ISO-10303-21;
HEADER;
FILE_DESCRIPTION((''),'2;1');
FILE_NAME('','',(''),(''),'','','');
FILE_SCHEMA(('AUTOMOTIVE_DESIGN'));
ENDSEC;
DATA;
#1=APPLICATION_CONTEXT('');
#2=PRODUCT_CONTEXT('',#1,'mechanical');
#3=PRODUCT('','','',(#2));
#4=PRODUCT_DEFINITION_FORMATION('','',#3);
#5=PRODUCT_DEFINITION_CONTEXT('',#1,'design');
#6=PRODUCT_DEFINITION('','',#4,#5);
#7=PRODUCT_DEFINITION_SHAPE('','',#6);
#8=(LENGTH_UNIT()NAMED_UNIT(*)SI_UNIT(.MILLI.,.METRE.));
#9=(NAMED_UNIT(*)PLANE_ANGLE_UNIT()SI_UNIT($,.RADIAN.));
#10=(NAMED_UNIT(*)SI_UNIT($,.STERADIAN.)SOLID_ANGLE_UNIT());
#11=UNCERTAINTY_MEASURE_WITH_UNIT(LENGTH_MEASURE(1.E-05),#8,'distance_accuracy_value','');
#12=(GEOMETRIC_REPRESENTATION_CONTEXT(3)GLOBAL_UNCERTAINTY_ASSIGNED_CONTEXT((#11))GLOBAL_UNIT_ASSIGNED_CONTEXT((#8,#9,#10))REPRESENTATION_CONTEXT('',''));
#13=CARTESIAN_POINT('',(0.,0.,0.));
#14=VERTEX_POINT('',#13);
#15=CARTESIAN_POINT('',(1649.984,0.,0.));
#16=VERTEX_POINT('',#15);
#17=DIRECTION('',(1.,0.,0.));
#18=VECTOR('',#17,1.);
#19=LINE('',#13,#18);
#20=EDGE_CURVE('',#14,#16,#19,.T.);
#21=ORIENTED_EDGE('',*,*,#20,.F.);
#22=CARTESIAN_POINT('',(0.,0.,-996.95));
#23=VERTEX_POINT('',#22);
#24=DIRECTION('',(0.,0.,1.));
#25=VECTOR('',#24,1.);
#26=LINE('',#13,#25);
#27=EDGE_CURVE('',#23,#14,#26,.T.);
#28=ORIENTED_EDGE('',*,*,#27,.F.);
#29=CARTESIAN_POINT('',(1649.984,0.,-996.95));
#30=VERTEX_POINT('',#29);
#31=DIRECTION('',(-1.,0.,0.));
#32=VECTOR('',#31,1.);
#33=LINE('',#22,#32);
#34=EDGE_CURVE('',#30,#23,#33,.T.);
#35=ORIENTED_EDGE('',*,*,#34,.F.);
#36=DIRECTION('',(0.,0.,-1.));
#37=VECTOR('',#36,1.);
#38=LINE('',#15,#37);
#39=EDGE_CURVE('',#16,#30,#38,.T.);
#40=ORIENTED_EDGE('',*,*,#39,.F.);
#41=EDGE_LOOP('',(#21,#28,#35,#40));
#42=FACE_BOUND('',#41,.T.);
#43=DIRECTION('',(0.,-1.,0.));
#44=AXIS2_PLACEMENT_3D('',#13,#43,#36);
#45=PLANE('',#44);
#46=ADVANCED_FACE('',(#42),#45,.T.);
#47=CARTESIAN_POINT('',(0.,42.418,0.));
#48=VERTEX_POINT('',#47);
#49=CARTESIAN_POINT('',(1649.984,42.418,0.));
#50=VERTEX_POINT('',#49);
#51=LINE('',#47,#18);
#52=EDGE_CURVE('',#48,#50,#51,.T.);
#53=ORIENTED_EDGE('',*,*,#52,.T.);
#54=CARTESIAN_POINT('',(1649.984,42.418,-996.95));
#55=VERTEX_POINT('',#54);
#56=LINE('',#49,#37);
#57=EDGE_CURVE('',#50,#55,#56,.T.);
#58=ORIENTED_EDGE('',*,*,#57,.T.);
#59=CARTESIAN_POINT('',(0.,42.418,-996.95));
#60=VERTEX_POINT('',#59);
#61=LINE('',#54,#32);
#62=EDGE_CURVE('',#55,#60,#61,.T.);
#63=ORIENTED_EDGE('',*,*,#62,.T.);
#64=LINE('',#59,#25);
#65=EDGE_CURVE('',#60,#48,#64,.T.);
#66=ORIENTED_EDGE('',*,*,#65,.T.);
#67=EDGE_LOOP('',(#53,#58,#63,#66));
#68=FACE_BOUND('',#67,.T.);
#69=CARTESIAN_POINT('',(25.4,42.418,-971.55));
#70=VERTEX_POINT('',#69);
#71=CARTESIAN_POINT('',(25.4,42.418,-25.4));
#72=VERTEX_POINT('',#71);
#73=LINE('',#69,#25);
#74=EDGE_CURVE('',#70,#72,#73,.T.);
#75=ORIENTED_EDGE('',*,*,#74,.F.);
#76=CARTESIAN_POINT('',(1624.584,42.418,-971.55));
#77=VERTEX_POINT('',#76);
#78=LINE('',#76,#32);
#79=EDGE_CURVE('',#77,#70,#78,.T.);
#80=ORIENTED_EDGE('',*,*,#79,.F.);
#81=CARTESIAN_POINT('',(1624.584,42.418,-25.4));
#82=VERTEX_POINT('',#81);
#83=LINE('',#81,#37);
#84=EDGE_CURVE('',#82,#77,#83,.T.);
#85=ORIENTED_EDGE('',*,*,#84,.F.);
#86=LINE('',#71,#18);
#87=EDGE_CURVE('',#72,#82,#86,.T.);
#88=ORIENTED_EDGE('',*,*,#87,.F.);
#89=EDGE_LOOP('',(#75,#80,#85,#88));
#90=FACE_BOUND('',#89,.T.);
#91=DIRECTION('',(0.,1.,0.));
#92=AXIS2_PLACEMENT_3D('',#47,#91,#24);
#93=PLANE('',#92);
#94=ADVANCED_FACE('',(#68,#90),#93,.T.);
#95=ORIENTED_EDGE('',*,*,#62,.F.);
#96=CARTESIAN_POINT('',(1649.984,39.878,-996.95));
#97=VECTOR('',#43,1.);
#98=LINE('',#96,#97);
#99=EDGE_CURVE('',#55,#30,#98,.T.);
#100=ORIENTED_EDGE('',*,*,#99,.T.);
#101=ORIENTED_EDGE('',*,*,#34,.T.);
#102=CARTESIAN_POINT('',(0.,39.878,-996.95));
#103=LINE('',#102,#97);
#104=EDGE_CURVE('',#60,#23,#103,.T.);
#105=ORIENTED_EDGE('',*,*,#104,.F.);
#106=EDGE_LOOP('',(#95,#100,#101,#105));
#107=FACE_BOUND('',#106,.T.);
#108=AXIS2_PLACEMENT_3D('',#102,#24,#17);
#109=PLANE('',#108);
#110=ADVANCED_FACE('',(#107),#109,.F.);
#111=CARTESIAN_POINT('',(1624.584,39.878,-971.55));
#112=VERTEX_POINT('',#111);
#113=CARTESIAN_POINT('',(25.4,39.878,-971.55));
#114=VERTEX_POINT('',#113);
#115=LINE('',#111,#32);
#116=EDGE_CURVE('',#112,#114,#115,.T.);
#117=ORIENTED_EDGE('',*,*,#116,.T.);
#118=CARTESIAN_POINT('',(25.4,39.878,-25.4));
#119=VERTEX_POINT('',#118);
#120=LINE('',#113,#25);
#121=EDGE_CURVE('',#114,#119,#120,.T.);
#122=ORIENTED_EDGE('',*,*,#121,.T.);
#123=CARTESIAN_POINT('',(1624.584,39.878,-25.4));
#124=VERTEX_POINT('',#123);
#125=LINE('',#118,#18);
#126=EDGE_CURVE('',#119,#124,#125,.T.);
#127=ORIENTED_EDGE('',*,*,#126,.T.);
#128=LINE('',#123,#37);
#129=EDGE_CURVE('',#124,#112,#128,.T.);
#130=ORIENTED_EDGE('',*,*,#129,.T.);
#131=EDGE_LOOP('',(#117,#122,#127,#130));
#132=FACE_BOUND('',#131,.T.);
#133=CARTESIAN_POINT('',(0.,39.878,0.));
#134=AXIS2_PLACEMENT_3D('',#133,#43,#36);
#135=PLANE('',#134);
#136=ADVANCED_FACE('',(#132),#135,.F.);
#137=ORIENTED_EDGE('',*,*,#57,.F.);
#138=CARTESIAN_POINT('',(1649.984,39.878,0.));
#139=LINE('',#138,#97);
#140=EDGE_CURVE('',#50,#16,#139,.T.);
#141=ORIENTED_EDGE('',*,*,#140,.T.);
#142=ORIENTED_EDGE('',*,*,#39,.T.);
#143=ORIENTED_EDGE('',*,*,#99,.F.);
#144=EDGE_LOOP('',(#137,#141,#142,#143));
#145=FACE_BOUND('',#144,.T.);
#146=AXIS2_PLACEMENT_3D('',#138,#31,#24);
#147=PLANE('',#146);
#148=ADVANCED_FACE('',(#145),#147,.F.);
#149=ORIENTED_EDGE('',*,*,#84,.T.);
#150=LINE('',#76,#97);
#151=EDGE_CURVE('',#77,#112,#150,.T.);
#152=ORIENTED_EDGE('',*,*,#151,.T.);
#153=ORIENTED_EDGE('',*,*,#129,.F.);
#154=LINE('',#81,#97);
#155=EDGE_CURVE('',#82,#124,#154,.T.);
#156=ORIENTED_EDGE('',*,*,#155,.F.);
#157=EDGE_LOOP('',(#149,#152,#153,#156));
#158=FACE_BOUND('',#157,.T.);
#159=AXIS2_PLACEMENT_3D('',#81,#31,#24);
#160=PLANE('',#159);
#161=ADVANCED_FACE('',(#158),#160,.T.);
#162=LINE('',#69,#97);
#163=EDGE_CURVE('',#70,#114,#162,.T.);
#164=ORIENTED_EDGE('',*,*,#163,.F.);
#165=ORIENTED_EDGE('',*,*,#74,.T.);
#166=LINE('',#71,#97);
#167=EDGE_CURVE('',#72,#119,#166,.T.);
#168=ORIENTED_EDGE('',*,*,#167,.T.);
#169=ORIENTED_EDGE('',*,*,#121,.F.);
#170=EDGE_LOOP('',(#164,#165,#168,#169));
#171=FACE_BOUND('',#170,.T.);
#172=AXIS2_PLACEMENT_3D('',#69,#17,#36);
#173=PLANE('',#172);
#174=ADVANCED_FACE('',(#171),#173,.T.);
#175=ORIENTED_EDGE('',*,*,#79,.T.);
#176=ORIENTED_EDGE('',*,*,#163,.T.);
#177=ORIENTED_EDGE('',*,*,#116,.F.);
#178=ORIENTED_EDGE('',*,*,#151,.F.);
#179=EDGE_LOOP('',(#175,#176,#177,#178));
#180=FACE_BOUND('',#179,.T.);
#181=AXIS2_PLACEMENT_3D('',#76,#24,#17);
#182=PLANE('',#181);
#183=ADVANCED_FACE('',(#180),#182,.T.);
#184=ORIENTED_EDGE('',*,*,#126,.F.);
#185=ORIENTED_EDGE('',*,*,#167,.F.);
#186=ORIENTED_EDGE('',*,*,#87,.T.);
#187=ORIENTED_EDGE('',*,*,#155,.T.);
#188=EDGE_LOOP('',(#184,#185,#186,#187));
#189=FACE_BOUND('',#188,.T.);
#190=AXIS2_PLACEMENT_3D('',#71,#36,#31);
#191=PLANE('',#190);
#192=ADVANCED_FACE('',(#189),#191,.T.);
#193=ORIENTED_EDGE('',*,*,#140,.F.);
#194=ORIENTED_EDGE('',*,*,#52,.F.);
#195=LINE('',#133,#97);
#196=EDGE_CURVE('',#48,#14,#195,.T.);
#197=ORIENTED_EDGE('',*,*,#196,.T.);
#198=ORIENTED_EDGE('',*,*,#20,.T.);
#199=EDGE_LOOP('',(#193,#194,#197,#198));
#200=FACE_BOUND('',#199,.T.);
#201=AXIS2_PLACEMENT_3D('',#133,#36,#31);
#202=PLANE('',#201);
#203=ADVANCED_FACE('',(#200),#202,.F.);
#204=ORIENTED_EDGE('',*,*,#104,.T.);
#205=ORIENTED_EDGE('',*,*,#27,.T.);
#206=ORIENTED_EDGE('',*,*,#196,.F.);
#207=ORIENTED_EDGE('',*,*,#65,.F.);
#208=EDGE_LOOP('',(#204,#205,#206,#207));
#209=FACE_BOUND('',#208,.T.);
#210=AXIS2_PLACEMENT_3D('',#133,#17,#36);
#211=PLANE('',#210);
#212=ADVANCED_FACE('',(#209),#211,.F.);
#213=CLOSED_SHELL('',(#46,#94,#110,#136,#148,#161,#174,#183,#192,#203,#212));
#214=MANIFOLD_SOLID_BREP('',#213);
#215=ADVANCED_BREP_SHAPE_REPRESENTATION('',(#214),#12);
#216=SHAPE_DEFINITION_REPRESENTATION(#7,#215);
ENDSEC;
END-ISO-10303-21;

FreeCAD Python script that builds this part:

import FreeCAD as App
import Part
import Sketcher
from FreeCAD import Vector
Q = App.Units.Quantity


def add_polygon(sketch, points):
    """Adds a closed chain of lines whose ends are joined by coincident constraints."""
    first, n = sketch.GeometryCount, len(points)
    for a, b in zip(points, points[1:] + points[:1]):
        sketch.addGeometry(Part.LineSegment(App.Vector(*a, 0), App.Vector(*b, 0)), False)
    for i in range(n):
        sketch.addConstraint(Sketcher.Constraint("Coincident", first + i, 2, first + (i + 1) % n, 1))

doc = App.newDocument("Part")
body = doc.addObject("PartDesign::Body", "Body")

sketch1 = body.newObject("Sketcher::SketchObject", "Sketch")
sketch1.AttachmentSupport = (doc.getObject("XZ_Plane"), [""])
sketch1.MapMode = "FlatFace"
add_polygon(sketch1, [(0, -997), (0, 0), (1650, 0), (1650, -997)])
sketch1.addConstraint([
    Sketcher.Constraint("Vertical", 0),
    Sketcher.Constraint("Horizontal", 1),
    Sketcher.Constraint("Vertical", 2),
    Sketcher.Constraint("Horizontal", 3),
    Sketcher.Constraint("Coincident", 0, 2, -1, 1),
    Sketcher.Constraint("DistanceX", 1, 1, 1, 2, Q("64.96 in")),
    Sketcher.Constraint("DistanceY", 0, 1, 0, 2, Q("39.25 in")),
])
pad1 = body.newObject("PartDesign::Pad", "Pad")
pad1.Profile = sketch1
pad1.Length = Q("1.57 in")
pad1.Reversed = True

sketch2 = body.newObject("Sketcher::SketchObject", "Sketch001")
sketch2.AttachmentSupport = (doc.getObject("XZ_Plane"), [""])
sketch2.MapMode = "FlatFace"
sketch2.AttachmentOffset = App.Placement(Vector(0, 0, -1.57 * 25.4), App.Rotation())
add_polygon(sketch2, [(0, -997), (0, 0), (1650, 0), (1650, -997)])
add_polygon(sketch2, [(1625, -25), (25, -25), (25, -972), (1625, -972)])
sketch2.addConstraint([
    Sketcher.Constraint("Vertical", 0),
    Sketcher.Constraint("Horizontal", 1),
    Sketcher.Constraint("Vertical", 2),
    Sketcher.Constraint("Horizontal", 3),
    Sketcher.Constraint("Horizontal", 4),
    Sketcher.Constraint("Vertical", 5),
    Sketcher.Constraint("Horizontal", 6),
    Sketcher.Constraint("Vertical", 7),
    Sketcher.Constraint("Coincident", 0, 2, -1, 1),
    Sketcher.Constraint("DistanceX", -1, 1, 4, 2, Q("1 in")),
    Sketcher.Constraint("DistanceY", 4, 2, -1, 1, Q("1 in")),
    Sketcher.Constraint("DistanceY", 3, 2, 5, 2, Q("1 in")),
    Sketcher.Constraint("DistanceX", 6, 2, 2, 2, Q("1 in")),
    Sketcher.Constraint("DistanceX", 1, 1, 1, 2, Q("64.96 in")),
    Sketcher.Constraint("DistanceY", 0, 1, 0, 2, Q("39.25 in")),
])
pad2 = body.newObject("PartDesign::Pad", "Pad001")
pad2.Profile = sketch2
pad2.Length = Q("0.1 in")
pad2.Reversed = True

doc.recompute()
